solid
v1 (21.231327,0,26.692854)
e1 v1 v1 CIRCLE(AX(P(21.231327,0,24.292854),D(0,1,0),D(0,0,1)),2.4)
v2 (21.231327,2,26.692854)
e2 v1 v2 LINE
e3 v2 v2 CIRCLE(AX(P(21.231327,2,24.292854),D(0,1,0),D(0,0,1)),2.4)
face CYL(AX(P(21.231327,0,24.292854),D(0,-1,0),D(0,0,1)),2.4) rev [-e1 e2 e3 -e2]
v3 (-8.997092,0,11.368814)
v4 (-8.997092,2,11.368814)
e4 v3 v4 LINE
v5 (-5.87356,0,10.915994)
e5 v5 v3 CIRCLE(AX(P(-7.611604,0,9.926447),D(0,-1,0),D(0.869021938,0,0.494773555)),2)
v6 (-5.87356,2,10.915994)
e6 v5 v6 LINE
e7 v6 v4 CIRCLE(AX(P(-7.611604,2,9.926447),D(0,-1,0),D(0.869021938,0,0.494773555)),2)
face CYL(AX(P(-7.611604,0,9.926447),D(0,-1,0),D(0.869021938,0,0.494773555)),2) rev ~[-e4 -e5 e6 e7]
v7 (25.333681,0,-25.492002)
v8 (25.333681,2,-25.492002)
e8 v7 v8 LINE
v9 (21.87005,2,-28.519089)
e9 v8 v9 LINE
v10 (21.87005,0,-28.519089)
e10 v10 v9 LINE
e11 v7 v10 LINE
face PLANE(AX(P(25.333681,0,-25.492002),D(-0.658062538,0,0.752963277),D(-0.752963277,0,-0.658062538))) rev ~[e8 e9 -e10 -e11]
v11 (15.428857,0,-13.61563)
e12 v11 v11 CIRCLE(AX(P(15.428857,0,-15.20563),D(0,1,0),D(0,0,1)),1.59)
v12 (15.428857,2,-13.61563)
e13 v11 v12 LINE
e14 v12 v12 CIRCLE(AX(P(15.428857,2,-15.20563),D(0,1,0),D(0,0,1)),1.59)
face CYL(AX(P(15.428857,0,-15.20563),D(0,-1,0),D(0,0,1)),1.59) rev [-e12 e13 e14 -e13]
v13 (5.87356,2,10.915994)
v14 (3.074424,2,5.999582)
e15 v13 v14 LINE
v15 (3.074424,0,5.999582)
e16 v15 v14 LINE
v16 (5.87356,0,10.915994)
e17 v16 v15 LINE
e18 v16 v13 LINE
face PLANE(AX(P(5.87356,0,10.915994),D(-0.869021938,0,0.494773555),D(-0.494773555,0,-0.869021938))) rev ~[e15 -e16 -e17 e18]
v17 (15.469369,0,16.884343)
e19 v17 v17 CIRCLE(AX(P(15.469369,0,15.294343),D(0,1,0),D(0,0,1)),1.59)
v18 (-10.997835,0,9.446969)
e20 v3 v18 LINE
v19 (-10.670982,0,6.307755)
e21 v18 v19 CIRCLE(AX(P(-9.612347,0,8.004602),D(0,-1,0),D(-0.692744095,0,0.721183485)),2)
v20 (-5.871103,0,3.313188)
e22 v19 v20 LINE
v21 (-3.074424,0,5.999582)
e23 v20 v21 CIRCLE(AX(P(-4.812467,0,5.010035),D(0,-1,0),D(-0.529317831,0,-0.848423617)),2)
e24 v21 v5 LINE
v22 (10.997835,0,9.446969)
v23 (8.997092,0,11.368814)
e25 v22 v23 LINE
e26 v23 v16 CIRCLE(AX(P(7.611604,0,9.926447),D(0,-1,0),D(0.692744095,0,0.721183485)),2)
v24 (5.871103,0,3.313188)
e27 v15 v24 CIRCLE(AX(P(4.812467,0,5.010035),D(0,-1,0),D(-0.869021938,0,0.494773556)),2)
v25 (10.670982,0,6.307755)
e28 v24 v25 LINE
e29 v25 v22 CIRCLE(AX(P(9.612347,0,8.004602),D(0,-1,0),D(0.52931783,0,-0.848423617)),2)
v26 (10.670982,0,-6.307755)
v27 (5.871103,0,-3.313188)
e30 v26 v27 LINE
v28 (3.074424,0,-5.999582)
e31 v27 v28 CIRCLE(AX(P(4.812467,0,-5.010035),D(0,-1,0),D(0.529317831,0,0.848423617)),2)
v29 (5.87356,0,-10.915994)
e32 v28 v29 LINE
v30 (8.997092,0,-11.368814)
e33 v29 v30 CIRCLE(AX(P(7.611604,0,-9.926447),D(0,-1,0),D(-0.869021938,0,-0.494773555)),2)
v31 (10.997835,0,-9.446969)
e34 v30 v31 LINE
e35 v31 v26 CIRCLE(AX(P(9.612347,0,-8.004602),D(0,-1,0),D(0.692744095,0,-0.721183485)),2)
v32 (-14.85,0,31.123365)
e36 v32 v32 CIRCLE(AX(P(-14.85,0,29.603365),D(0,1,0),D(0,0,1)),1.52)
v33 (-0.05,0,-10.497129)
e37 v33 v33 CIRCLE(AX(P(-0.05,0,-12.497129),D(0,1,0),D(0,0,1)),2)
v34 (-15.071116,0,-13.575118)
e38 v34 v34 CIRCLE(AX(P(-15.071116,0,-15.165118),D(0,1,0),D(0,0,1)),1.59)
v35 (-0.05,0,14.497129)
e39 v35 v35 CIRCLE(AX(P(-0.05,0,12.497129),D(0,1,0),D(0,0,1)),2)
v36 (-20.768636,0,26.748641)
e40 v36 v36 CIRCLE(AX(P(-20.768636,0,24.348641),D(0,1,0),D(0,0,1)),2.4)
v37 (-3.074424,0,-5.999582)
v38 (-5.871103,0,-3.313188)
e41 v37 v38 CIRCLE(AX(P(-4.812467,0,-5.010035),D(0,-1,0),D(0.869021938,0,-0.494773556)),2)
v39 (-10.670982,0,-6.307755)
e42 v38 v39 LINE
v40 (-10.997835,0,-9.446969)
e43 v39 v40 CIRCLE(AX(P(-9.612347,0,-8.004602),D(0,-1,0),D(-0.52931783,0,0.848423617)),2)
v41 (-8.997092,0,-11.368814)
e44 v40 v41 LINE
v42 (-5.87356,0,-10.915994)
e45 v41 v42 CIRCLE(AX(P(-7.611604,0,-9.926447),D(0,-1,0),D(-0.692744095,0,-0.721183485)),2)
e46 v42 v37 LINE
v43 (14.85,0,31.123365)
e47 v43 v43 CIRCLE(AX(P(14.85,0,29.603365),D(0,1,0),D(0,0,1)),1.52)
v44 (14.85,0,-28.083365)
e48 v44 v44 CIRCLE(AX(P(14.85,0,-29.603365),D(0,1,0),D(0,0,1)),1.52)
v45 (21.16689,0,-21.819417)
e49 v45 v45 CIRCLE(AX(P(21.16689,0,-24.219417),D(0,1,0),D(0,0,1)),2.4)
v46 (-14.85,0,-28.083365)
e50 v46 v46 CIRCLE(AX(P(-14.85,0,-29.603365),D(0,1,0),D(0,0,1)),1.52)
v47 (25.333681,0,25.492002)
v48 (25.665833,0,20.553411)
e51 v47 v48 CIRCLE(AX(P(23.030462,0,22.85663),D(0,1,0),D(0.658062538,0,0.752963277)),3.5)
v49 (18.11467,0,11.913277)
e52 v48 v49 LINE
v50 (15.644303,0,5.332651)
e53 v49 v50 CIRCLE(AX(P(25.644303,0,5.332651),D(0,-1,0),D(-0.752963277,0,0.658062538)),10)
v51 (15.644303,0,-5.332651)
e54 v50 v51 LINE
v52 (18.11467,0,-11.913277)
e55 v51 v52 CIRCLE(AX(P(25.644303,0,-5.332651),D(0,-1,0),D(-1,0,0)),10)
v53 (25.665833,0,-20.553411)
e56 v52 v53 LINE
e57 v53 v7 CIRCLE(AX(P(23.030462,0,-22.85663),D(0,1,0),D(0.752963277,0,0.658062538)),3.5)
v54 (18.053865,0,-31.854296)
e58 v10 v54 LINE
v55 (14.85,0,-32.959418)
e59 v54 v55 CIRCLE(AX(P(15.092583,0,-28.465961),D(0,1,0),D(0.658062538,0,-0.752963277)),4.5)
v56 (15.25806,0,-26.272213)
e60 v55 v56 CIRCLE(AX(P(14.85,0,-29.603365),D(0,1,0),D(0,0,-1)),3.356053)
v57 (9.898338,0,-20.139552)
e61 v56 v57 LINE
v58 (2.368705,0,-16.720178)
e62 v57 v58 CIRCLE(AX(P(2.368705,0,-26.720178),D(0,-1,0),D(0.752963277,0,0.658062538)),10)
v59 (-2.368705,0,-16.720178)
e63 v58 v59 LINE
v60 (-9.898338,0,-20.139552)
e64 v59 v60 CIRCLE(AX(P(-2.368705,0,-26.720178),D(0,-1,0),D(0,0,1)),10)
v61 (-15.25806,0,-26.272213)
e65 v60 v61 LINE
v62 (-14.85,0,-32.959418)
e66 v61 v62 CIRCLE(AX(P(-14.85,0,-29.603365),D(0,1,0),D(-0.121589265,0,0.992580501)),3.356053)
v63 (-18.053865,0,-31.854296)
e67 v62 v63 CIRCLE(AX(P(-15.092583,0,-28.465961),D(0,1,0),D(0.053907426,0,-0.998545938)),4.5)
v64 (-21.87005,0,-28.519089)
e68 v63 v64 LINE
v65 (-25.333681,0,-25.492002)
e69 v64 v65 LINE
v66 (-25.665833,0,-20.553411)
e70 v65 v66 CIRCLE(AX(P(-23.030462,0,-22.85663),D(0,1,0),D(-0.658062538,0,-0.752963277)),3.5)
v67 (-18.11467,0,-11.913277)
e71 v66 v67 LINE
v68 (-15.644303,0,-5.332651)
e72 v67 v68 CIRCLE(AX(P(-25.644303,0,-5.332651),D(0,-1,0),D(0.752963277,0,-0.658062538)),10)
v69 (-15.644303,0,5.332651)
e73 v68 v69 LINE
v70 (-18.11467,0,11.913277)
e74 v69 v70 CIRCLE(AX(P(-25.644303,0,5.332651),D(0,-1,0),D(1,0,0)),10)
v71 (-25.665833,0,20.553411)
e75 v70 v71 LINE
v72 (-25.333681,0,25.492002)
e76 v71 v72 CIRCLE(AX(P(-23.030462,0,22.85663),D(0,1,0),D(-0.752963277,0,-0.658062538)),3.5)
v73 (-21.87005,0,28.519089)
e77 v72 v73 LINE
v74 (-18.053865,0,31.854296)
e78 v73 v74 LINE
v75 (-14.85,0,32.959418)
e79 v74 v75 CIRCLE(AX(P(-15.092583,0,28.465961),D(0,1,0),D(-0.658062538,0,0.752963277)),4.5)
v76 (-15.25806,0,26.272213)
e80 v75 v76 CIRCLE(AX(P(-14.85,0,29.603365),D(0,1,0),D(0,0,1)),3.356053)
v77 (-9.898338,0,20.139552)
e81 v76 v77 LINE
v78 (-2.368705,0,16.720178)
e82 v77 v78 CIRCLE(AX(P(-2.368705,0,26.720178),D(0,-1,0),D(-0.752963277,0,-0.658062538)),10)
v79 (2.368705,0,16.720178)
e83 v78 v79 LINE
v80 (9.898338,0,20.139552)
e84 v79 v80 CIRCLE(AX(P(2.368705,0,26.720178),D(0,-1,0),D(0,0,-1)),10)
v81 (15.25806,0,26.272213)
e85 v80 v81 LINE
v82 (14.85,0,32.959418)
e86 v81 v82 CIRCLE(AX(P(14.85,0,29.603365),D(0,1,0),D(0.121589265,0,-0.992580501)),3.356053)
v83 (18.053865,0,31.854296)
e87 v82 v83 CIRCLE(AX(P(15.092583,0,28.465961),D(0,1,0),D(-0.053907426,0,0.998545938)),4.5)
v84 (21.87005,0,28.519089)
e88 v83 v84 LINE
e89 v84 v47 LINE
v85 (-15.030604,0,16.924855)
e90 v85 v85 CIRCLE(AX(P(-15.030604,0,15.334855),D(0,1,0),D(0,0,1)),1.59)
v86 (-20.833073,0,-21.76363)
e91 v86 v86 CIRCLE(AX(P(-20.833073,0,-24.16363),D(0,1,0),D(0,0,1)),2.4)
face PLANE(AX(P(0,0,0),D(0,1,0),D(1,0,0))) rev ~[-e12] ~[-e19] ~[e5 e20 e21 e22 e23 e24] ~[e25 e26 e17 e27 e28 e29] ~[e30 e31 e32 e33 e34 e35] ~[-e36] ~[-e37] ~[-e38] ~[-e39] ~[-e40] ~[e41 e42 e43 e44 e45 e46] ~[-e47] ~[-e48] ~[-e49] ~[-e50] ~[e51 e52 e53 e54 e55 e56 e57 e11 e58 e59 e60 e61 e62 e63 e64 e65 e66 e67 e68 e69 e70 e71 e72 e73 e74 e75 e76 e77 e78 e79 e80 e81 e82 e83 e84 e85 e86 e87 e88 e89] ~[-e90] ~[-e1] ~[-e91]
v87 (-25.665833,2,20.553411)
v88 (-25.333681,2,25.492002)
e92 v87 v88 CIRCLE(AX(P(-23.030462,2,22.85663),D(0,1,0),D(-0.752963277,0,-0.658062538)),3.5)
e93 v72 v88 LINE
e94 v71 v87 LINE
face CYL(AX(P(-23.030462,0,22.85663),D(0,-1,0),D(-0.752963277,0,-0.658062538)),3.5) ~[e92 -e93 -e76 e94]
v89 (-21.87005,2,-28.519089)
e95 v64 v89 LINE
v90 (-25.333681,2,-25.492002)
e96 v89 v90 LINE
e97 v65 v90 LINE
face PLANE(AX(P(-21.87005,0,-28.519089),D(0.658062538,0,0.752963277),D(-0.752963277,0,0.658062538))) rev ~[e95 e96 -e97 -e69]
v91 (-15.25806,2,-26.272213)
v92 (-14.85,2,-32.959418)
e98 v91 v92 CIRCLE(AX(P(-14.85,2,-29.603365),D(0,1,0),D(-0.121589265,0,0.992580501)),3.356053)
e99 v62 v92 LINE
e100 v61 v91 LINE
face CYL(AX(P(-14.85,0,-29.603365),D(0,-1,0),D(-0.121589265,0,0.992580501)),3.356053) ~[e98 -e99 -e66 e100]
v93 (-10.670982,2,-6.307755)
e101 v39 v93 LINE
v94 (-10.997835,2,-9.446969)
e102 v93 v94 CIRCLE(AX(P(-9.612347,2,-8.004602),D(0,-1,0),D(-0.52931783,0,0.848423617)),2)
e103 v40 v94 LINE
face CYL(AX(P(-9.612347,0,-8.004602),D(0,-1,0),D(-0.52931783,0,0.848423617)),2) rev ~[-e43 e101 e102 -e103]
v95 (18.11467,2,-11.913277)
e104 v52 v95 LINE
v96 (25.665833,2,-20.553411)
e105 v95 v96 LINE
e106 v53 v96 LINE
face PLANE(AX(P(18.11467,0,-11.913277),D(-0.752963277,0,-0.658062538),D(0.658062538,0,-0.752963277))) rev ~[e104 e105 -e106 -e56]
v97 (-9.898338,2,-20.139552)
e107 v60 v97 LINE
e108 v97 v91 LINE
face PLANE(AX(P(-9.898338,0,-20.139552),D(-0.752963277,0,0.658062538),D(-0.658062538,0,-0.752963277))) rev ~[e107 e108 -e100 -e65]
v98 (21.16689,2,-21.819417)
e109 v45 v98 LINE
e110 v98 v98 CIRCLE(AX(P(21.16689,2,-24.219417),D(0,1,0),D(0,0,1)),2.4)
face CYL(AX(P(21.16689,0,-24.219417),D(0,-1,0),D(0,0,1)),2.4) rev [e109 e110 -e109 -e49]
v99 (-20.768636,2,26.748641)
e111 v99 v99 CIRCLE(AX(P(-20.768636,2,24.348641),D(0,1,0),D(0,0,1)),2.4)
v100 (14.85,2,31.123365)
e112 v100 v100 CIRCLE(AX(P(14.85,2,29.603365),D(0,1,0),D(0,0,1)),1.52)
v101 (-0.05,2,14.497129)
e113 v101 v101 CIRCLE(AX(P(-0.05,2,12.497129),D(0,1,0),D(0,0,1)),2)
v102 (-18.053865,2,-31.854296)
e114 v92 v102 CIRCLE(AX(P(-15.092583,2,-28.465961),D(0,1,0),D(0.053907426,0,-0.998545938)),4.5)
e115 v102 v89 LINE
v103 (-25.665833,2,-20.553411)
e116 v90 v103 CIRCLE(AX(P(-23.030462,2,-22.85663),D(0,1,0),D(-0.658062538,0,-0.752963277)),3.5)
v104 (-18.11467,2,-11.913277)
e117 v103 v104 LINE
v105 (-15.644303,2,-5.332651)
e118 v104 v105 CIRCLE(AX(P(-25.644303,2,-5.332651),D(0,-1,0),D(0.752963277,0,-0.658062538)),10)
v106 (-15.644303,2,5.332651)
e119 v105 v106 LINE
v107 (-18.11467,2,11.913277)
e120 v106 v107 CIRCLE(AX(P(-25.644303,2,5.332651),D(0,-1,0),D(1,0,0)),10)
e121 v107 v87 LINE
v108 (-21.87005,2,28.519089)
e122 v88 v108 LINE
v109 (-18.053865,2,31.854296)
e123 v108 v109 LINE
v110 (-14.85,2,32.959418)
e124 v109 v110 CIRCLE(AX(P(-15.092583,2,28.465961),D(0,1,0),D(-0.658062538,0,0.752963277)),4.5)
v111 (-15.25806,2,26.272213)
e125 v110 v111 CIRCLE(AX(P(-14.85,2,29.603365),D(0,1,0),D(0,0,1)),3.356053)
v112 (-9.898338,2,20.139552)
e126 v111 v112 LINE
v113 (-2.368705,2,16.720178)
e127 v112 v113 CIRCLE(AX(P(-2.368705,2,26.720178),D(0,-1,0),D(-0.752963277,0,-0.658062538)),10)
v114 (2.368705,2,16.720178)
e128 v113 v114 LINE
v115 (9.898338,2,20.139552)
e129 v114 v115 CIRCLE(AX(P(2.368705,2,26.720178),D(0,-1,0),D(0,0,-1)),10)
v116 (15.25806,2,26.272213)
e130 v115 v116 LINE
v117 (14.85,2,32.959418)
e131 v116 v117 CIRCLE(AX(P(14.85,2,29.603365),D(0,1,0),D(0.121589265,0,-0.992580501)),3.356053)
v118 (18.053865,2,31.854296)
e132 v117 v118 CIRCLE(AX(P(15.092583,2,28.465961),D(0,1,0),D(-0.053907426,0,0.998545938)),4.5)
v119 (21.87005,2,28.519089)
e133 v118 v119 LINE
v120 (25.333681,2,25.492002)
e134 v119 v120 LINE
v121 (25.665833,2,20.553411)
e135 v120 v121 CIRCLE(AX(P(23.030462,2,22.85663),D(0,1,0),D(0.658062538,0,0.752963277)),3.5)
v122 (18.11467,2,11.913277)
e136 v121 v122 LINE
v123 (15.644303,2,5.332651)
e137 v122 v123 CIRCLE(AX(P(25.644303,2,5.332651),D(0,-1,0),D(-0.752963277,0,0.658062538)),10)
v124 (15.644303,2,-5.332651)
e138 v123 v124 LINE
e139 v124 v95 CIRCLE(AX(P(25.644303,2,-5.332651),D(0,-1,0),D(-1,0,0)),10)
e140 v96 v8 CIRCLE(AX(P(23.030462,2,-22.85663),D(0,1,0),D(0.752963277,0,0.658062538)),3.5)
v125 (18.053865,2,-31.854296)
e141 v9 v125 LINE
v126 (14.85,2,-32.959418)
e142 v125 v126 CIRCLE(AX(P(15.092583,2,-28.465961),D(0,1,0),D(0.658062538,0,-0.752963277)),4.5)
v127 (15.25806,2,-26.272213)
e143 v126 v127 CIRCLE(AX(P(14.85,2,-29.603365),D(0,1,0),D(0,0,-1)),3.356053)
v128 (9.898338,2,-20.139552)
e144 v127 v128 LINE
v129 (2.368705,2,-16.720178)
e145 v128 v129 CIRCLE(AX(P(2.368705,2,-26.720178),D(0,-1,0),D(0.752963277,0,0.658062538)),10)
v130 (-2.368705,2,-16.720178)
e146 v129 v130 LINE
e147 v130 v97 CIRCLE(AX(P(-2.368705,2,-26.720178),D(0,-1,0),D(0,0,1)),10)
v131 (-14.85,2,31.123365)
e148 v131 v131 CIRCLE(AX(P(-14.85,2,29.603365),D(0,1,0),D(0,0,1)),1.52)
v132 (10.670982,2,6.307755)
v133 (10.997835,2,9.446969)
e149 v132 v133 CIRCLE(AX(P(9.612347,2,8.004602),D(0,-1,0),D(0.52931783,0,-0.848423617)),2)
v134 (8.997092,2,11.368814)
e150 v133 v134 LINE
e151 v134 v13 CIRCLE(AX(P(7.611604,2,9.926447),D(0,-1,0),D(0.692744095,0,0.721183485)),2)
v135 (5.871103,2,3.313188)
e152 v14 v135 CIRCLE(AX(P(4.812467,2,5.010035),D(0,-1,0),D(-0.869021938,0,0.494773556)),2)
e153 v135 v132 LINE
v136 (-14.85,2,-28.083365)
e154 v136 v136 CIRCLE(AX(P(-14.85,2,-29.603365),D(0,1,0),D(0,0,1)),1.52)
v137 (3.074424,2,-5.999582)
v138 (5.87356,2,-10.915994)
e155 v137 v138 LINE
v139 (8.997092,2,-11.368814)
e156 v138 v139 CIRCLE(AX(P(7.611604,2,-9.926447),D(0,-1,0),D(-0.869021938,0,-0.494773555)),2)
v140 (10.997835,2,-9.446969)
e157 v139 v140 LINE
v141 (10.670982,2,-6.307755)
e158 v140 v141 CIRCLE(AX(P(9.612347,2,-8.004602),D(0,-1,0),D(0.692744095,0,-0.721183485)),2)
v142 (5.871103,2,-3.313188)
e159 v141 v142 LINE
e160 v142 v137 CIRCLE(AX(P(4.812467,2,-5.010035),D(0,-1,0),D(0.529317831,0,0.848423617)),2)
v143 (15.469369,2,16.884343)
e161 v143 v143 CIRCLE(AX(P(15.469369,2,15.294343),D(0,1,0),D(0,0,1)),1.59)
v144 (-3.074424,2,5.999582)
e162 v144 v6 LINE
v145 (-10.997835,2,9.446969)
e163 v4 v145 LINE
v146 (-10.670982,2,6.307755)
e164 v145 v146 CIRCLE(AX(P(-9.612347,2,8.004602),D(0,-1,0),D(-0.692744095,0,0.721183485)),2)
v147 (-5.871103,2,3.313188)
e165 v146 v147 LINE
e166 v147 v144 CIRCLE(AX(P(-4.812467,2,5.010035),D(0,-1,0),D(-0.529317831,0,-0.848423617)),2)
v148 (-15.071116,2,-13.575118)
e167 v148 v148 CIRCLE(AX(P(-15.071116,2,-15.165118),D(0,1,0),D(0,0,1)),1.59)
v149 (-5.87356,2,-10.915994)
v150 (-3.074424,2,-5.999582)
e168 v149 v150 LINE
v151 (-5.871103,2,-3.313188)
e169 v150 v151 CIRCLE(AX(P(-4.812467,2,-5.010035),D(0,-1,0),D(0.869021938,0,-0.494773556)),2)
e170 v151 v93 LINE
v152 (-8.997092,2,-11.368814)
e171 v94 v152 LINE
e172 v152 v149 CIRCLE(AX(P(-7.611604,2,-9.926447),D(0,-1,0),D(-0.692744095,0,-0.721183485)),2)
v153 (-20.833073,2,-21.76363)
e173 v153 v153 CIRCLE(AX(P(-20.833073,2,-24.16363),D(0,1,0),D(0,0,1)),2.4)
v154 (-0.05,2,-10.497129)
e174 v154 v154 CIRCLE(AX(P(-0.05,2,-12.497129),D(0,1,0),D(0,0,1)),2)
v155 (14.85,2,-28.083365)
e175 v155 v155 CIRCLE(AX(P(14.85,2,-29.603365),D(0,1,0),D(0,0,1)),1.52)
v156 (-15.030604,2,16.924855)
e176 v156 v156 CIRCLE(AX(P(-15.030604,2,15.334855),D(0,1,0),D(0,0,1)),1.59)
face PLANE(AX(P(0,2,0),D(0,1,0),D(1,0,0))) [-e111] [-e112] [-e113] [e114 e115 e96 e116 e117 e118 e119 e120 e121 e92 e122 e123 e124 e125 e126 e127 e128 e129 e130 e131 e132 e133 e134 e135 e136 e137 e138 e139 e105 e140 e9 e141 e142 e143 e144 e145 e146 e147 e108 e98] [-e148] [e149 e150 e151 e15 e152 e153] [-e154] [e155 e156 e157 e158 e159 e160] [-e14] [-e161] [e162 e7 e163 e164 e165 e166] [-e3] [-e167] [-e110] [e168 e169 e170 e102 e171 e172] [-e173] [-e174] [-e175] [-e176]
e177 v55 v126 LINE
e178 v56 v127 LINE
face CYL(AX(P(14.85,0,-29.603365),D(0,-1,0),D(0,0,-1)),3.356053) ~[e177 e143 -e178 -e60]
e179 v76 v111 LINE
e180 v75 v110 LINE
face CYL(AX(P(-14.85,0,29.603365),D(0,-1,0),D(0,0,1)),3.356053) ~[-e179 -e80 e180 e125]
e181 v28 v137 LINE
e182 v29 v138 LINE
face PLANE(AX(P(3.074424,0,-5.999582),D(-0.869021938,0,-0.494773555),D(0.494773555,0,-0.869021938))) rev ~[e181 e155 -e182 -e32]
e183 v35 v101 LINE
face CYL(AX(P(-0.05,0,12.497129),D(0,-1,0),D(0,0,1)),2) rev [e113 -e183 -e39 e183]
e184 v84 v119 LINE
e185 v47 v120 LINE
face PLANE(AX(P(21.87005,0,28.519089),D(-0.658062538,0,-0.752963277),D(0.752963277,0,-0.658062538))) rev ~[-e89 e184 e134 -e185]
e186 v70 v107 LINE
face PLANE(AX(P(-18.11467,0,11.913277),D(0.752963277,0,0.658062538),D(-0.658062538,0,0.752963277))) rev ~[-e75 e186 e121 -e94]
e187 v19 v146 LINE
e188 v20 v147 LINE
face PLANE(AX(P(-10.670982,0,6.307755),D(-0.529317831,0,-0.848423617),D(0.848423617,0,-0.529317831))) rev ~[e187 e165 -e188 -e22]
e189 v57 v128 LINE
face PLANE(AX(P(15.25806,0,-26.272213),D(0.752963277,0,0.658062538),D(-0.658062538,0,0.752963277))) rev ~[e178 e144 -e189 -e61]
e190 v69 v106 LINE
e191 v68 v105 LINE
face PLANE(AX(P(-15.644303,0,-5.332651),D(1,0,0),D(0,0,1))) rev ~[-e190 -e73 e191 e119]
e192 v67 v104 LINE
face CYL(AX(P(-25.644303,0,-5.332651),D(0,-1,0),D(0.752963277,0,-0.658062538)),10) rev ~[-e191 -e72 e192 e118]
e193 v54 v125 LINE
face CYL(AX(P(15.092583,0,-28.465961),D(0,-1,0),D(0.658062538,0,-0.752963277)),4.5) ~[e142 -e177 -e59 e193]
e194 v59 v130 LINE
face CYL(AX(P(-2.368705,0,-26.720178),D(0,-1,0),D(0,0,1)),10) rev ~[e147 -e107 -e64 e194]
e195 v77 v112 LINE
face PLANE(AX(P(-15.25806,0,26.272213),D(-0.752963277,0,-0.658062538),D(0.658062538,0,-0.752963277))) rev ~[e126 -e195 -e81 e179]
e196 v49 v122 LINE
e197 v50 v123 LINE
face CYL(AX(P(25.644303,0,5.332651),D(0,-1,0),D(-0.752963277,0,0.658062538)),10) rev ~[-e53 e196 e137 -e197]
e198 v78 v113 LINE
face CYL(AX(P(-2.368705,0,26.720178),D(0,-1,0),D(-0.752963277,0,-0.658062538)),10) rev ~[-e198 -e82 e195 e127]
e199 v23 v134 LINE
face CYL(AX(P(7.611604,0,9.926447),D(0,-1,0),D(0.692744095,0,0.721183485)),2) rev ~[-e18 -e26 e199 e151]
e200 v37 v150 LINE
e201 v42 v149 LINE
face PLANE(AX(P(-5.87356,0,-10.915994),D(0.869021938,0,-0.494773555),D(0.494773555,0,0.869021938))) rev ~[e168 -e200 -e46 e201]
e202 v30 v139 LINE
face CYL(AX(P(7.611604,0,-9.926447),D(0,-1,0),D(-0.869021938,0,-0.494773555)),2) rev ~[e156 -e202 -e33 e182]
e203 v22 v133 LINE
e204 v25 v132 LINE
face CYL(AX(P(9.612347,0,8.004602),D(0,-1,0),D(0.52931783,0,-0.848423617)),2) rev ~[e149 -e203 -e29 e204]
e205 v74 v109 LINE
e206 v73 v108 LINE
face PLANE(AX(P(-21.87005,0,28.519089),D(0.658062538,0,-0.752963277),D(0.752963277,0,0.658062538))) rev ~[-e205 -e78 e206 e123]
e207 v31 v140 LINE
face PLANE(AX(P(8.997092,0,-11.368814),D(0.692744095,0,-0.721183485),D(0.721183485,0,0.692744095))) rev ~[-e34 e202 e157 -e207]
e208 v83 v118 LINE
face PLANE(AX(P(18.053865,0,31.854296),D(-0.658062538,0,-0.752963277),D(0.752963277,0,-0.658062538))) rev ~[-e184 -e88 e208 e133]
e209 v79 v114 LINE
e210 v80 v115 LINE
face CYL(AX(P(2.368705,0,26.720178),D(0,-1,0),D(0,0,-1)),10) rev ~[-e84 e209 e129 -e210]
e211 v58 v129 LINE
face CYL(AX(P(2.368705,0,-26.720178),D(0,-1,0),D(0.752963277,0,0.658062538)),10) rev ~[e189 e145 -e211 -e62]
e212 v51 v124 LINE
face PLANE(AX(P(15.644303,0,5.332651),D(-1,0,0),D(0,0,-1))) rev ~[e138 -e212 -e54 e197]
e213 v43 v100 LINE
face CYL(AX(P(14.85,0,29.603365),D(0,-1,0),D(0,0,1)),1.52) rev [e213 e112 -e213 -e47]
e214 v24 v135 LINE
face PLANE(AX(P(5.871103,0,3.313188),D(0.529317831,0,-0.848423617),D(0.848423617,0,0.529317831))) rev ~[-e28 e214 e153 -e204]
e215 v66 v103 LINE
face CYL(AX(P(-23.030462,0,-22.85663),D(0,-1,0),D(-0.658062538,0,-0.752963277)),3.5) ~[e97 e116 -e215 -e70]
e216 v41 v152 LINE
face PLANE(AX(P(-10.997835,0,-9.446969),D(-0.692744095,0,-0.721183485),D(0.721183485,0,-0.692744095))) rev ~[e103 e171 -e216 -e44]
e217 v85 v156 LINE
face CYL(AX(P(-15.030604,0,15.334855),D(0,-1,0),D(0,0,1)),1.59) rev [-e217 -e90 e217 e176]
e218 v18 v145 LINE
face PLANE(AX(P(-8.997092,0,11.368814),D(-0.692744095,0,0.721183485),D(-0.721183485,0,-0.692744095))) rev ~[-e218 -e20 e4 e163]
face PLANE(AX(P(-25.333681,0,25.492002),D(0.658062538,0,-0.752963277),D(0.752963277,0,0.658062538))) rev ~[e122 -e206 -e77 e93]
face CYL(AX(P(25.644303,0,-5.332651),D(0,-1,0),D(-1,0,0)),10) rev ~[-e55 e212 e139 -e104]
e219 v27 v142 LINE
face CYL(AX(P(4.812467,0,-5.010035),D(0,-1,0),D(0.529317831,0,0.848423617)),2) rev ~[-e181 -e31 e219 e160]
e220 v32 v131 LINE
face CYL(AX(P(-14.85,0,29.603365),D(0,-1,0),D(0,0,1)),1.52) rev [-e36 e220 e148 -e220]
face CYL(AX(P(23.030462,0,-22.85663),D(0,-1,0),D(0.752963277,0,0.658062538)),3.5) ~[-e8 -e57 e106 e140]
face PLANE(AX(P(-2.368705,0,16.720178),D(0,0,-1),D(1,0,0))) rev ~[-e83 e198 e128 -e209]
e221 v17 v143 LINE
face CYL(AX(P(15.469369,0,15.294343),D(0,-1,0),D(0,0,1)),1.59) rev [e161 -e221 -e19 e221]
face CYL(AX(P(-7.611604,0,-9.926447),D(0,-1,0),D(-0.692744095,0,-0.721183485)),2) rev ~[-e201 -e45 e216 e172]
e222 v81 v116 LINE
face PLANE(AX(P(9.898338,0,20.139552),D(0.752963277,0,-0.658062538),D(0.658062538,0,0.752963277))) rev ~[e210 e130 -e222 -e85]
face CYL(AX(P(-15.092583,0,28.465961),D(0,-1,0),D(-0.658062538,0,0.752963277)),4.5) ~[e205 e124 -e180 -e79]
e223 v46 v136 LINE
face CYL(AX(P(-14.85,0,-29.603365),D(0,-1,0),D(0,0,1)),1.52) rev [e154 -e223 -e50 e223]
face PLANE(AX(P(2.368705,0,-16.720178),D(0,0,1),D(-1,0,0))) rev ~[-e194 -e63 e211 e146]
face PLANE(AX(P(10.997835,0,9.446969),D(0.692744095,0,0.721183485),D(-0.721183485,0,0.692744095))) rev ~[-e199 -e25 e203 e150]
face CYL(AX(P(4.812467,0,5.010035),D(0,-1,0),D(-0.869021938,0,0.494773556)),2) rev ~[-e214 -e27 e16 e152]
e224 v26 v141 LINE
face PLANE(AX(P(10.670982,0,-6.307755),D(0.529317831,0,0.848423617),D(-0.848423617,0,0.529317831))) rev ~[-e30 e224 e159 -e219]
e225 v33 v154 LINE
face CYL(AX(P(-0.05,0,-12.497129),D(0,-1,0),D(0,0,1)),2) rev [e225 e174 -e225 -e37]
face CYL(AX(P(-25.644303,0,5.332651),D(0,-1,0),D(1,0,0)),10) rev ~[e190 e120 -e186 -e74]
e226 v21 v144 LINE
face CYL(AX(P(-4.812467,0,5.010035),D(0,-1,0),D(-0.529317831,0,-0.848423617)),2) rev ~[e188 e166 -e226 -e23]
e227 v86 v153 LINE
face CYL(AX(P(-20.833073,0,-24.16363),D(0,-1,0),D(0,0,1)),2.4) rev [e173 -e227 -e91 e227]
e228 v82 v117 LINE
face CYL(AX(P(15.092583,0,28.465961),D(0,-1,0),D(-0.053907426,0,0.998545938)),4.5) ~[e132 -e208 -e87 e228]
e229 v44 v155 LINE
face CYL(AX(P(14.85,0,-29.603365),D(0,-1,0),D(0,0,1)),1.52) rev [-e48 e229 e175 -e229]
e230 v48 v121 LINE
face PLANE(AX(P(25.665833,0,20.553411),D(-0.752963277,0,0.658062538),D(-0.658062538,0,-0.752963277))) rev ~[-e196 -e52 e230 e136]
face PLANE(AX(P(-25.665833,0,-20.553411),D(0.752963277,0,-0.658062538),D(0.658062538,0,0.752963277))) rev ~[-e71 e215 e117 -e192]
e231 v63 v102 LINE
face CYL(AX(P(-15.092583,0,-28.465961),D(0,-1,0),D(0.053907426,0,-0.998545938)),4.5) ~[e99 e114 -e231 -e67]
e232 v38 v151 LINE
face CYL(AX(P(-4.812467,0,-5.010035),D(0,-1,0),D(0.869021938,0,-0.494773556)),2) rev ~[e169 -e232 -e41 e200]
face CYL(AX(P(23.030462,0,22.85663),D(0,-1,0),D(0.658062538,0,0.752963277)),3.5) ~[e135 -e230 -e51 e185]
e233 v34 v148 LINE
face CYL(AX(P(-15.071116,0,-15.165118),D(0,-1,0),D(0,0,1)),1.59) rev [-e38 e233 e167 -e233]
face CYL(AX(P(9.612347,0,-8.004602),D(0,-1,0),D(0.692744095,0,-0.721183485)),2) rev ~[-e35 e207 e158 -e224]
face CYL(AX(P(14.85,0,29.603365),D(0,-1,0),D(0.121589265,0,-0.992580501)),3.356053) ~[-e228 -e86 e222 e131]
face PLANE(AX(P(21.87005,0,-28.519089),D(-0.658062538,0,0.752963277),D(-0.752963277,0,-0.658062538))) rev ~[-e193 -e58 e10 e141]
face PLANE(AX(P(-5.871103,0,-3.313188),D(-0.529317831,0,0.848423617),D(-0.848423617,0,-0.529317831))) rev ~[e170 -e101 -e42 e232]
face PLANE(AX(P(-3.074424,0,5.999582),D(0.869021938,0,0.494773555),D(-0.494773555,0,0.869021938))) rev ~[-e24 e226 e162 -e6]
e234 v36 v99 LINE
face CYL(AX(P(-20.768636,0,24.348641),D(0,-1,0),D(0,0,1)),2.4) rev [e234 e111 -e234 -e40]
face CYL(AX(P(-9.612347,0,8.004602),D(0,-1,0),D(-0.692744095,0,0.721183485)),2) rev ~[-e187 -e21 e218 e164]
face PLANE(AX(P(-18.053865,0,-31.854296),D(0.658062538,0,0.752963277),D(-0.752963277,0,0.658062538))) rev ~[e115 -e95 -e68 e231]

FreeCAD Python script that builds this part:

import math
import FreeCAD as App
import Part
import Sketcher
Q = App.Units.Quantity

doc = App.newDocument("Part")
params = doc.addObject("Spreadsheet::Sheet", "Params")
for row, (alias, value) in enumerate([
    ("sketch1_diameter", "4 mm"),
    ("sketch1_radius", "10 mm"),
    ("sketch1_diameter2", "4.8 mm"),
    ("sketch1_radius2", "3.5 mm"),
    ("sketch1_radius3", "4.5 mm"),
    ("pad1_length", "2 mm"),
], start=1):
    params.set(f"A{row}", alias)
    params.set(f"B{row}", "=" + value)
    params.setAlias(f"B{row}", alias)

body = doc.addObject("PartDesign::Body", "Body")

# Sketch on XZ plane
sketch1 = body.newObject("Sketcher::SketchObject", "Sketch")
sketch1.AttachmentSupport = (doc.getObject("XZ_Plane"), [""])
sketch1.MapMode = "FlatFace"
sketch1.addGeometry(Part.ArcOfCircle(Part.Circle(App.Vector(-25.6, 5.3, 0), App.Vector(0, 0, 1), 10), math.radians(0), math.radians(41)), False)
sketch1.addGeometry(Part.LineSegment(App.Vector(-18.1, 11.9, 0), App.Vector(-25.7, 20.6, 0)), False)
sketch1.addGeometry(Part.ArcOfCircle(Part.Circle(App.Vector(-23, 22.9, 0), App.Vector(0, 0, 1), 3.5), math.radians(131), math.radians(221)), False)
sketch1.addGeometry(Part.LineSegment(App.Vector(-25.3, 25.5, 0), App.Vector(-21.9, 28.5, 0)), False)
sketch1.addGeometry(Part.LineSegment(App.Vector(-21.9, 28.5, 0), App.Vector(-18.1, 31.9, 0)), False)
sketch1.addGeometry(Part.ArcOfCircle(Part.Circle(App.Vector(-15.1, 28.5, 0), App.Vector(0, 0, 1), 4.5), math.radians(87), math.radians(131)), False)
sketch1.addGeometry(Part.ArcOfCircle(Part.Circle(App.Vector(-14.8, 29.6, 0), App.Vector(0, 0, 1), 3.4), math.radians(-97), math.radians(90)), False)
sketch1.addGeometry(Part.LineSegment(App.Vector(-15.3, 26.3, 0), App.Vector(-9.9, 20.1, 0)), False)
sketch1.addGeometry(Part.ArcOfCircle(Part.Circle(App.Vector(-2.4, 26.7, 0), App.Vector(0, 0, 1), 10), math.radians(-139), math.radians(-90)), False)
sketch1.addGeometry(Part.LineSegment(App.Vector(-2.4, 16.7, 0), App.Vector(2.4, 16.7, 0)), False)
sketch1.addGeometry(Part.ArcOfCircle(Part.Circle(App.Vector(2.4, 26.7, 0), App.Vector(0, 0, 1), 10), math.radians(-90), math.radians(-41)), False)
sketch1.addGeometry(Part.LineSegment(App.Vector(9.9, 20.1, 0), App.Vector(15.3, 26.3, 0)), False)
sketch1.addGeometry(Part.ArcOfCircle(Part.Circle(App.Vector(14.8, 29.6, 0), App.Vector(0, 0, 1), 3.4), math.radians(90), math.radians(277)), False)
sketch1.addGeometry(Part.ArcOfCircle(Part.Circle(App.Vector(15.1, 28.5, 0), App.Vector(0, 0, 1), 4.5), math.radians(49), math.radians(93)), False)
sketch1.addGeometry(Part.LineSegment(App.Vector(18.1, 31.9, 0), App.Vector(21.9, 28.5, 0)), False)
sketch1.addGeometry(Part.LineSegment(App.Vector(21.9, 28.5, 0), App.Vector(25.3, 25.5, 0)), False)
sketch1.addGeometry(Part.ArcOfCircle(Part.Circle(App.Vector(23, 22.9, 0), App.Vector(0, 0, 1), 3.5), math.radians(-41), math.radians(49)), False)
sketch1.addGeometry(Part.LineSegment(App.Vector(25.7, 20.6, 0), App.Vector(18.1, 11.9, 0)), False)
sketch1.addGeometry(Part.ArcOfCircle(Part.Circle(App.Vector(25.6, 5.3, 0), App.Vector(0, 0, 1), 10), math.radians(139), math.radians(180)), False)
sketch1.addGeometry(Part.LineSegment(App.Vector(15.6, 5.3, 0), App.Vector(15.6, -5.3, 0)), False)
sketch1.addGeometry(Part.ArcOfCircle(Part.Circle(App.Vector(25.6, -5.3, 0), App.Vector(0, 0, 1), 10), math.radians(180), math.radians(221)), False)
sketch1.addGeometry(Part.LineSegment(App.Vector(18.1, -11.9, 0), App.Vector(25.7, -20.6, 0)), False)
sketch1.addGeometry(Part.ArcOfCircle(Part.Circle(App.Vector(23, -22.9, 0), App.Vector(0, 0, 1), 3.5), math.radians(-49), math.radians(41)), False)
sketch1.addGeometry(Part.LineSegment(App.Vector(25.3, -25.5, 0), App.Vector(21.9, -28.5, 0)), False)
sketch1.addGeometry(Part.LineSegment(App.Vector(21.9, -28.5, 0), App.Vector(18.1, -31.9, 0)), False)
sketch1.addGeometry(Part.ArcOfCircle(Part.Circle(App.Vector(15.1, -28.5, 0), App.Vector(0, 0, 1), 4.5), math.radians(-93), math.radians(-49)), False)
sketch1.addGeometry(Part.ArcOfCircle(Part.Circle(App.Vector(14.8, -29.6, 0), App.Vector(0, 0, 1), 3.4), math.radians(83), math.radians(270)), False)
sketch1.addGeometry(Part.LineSegment(App.Vector(15.3, -26.3, 0), App.Vector(9.9, -20.1, 0)), False)
sketch1.addGeometry(Part.ArcOfCircle(Part.Circle(App.Vector(2.4, -26.7, 0), App.Vector(0, 0, 1), 10), math.radians(41), math.radians(90)), False)
sketch1.addGeometry(Part.LineSegment(App.Vector(2.4, -16.7, 0), App.Vector(-2.4, -16.7, 0)), False)
sketch1.addGeometry(Part.ArcOfCircle(Part.Circle(App.Vector(-2.4, -26.7, 0), App.Vector(0, 0, 1), 10), math.radians(90), math.radians(139)), False)
sketch1.addGeometry(Part.LineSegment(App.Vector(-9.9, -20.1, 0), App.Vector(-15.3, -26.3, 0)), False)
sketch1.addGeometry(Part.ArcOfCircle(Part.Circle(App.Vector(-14.8, -29.6, 0), App.Vector(0, 0, 1), 3.4), math.radians(-90), math.radians(97)), False)
sketch1.addGeometry(Part.ArcOfCircle(Part.Circle(App.Vector(-15.1, -28.5, 0), App.Vector(0, 0, 1), 4.5), math.radians(-131), math.radians(-87)), False)
sketch1.addGeometry(Part.LineSegment(App.Vector(-18.1, -31.9, 0), App.Vector(-21.9, -28.5, 0)), False)
sketch1.addGeometry(Part.LineSegment(App.Vector(-21.9, -28.5, 0), App.Vector(-25.3, -25.5, 0)), False)
sketch1.addGeometry(Part.ArcOfCircle(Part.Circle(App.Vector(-23, -22.9, 0), App.Vector(0, 0, 1), 3.5), math.radians(139), math.radians(229)), False)
sketch1.addGeometry(Part.LineSegment(App.Vector(-25.7, -20.6, 0), App.Vector(-18.1, -11.9, 0)), False)
sketch1.addGeometry(Part.ArcOfCircle(Part.Circle(App.Vector(-25.6, -5.3, 0), App.Vector(0, 0, 1), 10), math.radians(-41), math.radians(0)), False)
sketch1.addGeometry(Part.LineSegment(App.Vector(-15.6, -5.3, 0), App.Vector(-15.6, 5.3, 0)), False)
sketch1.addGeometry(Part.Circle(App.Vector(-20.8, 24.3, 0), App.Vector(0, 0, 1), 2.4), False)
sketch1.addGeometry(Part.Circle(App.Vector(-14.8, 29.6, 0), App.Vector(0, 0, 1), 1.5), False)
sketch1.addGeometry(Part.Circle(App.Vector(-15, 15.3, 0), App.Vector(0, 0, 1), 1.6), False)
sketch1.addGeometry(Part.Circle(App.Vector(-0.1, 12.5, 0), App.Vector(0, 0, 1), 2), False)
sketch1.addGeometry(Part.ArcOfCircle(Part.Circle(App.Vector(-4.8, 5, 0), App.Vector(0, 0, 1), 2), math.radians(-122), math.radians(30)), False)
sketch1.addGeometry(Part.LineSegment(App.Vector(-3.1, 6, 0), App.Vector(-5.9, 10.9, 0)), False)
sketch1.addGeometry(Part.ArcOfCircle(Part.Circle(App.Vector(-7.6, 9.9, 0), App.Vector(0, 0, 1), 2), math.radians(30), math.radians(134)), False)
sketch1.addGeometry(Part.LineSegment(App.Vector(-9, 11.4, 0), App.Vector(-11, 9.4, 0)), False)
sketch1.addGeometry(Part.ArcOfCircle(Part.Circle(App.Vector(-9.6, 8, 0), App.Vector(0, 0, 1), 2), math.radians(134), math.radians(238)), False)
sketch1.addGeometry(Part.LineSegment(App.Vector(-10.7, 6.3, 0), App.Vector(-5.9, 3.3, 0)), False)
sketch1.addGeometry(Part.Circle(App.Vector(14.8, 29.6, 0), App.Vector(0, 0, 1), 1.5), False)
sketch1.addGeometry(Part.Circle(App.Vector(21.2, 24.3, 0), App.Vector(0, 0, 1), 2.4), False)
sketch1.addGeometry(Part.ArcOfCircle(Part.Circle(App.Vector(9.6, 8, 0), App.Vector(0, 0, 1), 2), math.radians(-58), math.radians(46)), False)
sketch1.addGeometry(Part.LineSegment(App.Vector(11, 9.4, 0), App.Vector(9, 11.4, 0)), False)
sketch1.addGeometry(Part.ArcOfCircle(Part.Circle(App.Vector(7.6, 9.9, 0), App.Vector(0, 0, 1), 2), math.radians(46), math.radians(150)), False)
sketch1.addGeometry(Part.LineSegment(App.Vector(5.9, 10.9, 0), App.Vector(3.1, 6, 0)), False)
sketch1.addGeometry(Part.ArcOfCircle(Part.Circle(App.Vector(4.8, 5, 0), App.Vector(0, 0, 1), 2), math.radians(150), math.radians(302)), False)
sketch1.addGeometry(Part.LineSegment(App.Vector(5.9, 3.3, 0), App.Vector(10.7, 6.3, 0)), False)
sketch1.addGeometry(Part.Circle(App.Vector(15.5, 15.3, 0), App.Vector(0, 0, 1), 1.6), False)
sketch1.addGeometry(Part.Circle(App.Vector(-15.1, -15.2, 0), App.Vector(0, 0, 1), 1.6), False)
sketch1.addGeometry(Part.ArcOfCircle(Part.Circle(App.Vector(-9.6, -8, 0), App.Vector(0, 0, 1), 2), math.radians(122), math.radians(226)), False)
sketch1.addGeometry(Part.LineSegment(App.Vector(-11, -9.4, 0), App.Vector(-9, -11.4, 0)), False)
sketch1.addGeometry(Part.ArcOfCircle(Part.Circle(App.Vector(-7.6, -9.9, 0), App.Vector(0, 0, 1), 2), math.radians(-134), math.radians(-30)), False)
sketch1.addGeometry(Part.LineSegment(App.Vector(-5.9, -10.9, 0), App.Vector(-3.1, -6, 0)), False)
sketch1.addGeometry(Part.ArcOfCircle(Part.Circle(App.Vector(-4.8, -5, 0), App.Vector(0, 0, 1), 2), math.radians(-30), math.radians(122)), False)
sketch1.addGeometry(Part.LineSegment(App.Vector(-5.9, -3.3, 0), App.Vector(-10.7, -6.3, 0)), False)
sketch1.addGeometry(Part.Circle(App.Vector(-0.1, -12.5, 0), App.Vector(0, 0, 1), 2), False)
sketch1.addGeometry(Part.Circle(App.Vector(-20.8, -24.2, 0), App.Vector(0, 0, 1), 2.4), False)
sketch1.addGeometry(Part.Circle(App.Vector(-14.8, -29.6, 0), App.Vector(0, 0, 1), 1.5), False)
sketch1.addGeometry(Part.ArcOfCircle(Part.Circle(App.Vector(4.8, -5, 0), App.Vector(0, 0, 1), 2), math.radians(58), math.radians(210)), False)
sketch1.addGeometry(Part.LineSegment(App.Vector(3.1, -6, 0), App.Vector(5.9, -10.9, 0)), False)
sketch1.addGeometry(Part.ArcOfCircle(Part.Circle(App.Vector(7.6, -9.9, 0), App.Vector(0, 0, 1), 2), math.radians(-150), math.radians(-46)), False)
sketch1.addGeometry(Part.LineSegment(App.Vector(9, -11.4, 0), App.Vector(11, -9.4, 0)), False)
sketch1.addGeometry(Part.ArcOfCircle(Part.Circle(App.Vector(9.6, -8, 0), App.Vector(0, 0, 1), 2), math.radians(-46), math.radians(58)), False)
sketch1.addGeometry(Part.LineSegment(App.Vector(10.7, -6.3, 0), App.Vector(5.9, -3.3, 0)), False)
sketch1.addGeometry(Part.Circle(App.Vector(15.4, -15.2, 0), App.Vector(0, 0, 1), 1.6), False)
sketch1.addGeometry(Part.Circle(App.Vector(14.8, -29.6, 0), App.Vector(0, 0, 1), 1.5), False)
sketch1.addGeometry(Part.Circle(App.Vector(21.2, -24.2, 0), App.Vector(0, 0, 1), 2.4), False)
sketch1.addConstraint(Sketcher.Constraint("Tangent", 0, 2, 1, 1))
sketch1.addConstraint(Sketcher.Constraint("Tangent", 1, 2, 2, 2))
sketch1.addConstraint(Sketcher.Constraint("Tangent", 2, 1, 3, 1))
sketch1.addConstraint(Sketcher.Constraint("Coincident", 3, 2, 4, 1))
sketch1.addConstraint(Sketcher.Constraint("Tangent", 4, 2, 5, 2))
sketch1.addConstraint(Sketcher.Constraint("Coincident", 5, 1, 6, 2))
sketch1.addConstraint(Sketcher.Constraint("Coincident", 6, 1, 7, 1))
sketch1.addConstraint(Sketcher.Constraint("Tangent", 7, 2, 8, 1))
sketch1.addConstraint(Sketcher.Constraint("Tangent", 8, 2, 9, 1))
sketch1.addConstraint(Sketcher.Constraint("Tangent", 9, 2, 10, 1))
sketch1.addConstraint(Sketcher.Constraint("Tangent", 10, 2, 11, 1))
sketch1.addConstraint(Sketcher.Constraint("Coincident", 11, 2, 12, 2))
sketch1.addConstraint(Sketcher.Constraint("Coincident", 12, 1, 13, 2))
sketch1.addConstraint(Sketcher.Constraint("Tangent", 13, 1, 14, 1))
sketch1.addConstraint(Sketcher.Constraint("Coincident", 14, 2, 15, 1))
sketch1.addConstraint(Sketcher.Constraint("Tangent", 15, 2, 16, 2))
sketch1.addConstraint(Sketcher.Constraint("Tangent", 16, 1, 17, 1))
sketch1.addConstraint(Sketcher.Constraint("Tangent", 17, 2, 18, 1))
sketch1.addConstraint(Sketcher.Constraint("Tangent", 18, 2, 19, 1))
sketch1.addConstraint(Sketcher.Constraint("Tangent", 19, 2, 20, 1))
sketch1.addConstraint(Sketcher.Constraint("Tangent", 20, 2, 21, 1))
sketch1.addConstraint(Sketcher.Constraint("Tangent", 21, 2, 22, 2))
sketch1.addConstraint(Sketcher.Constraint("Tangent", 22, 1, 23, 1))
sketch1.addConstraint(Sketcher.Constraint("Coincident", 23, 2, 24, 1))
sketch1.addConstraint(Sketcher.Constraint("Tangent", 24, 2, 25, 2))
sketch1.addConstraint(Sketcher.Constraint("Coincident", 25, 1, 26, 2))
sketch1.addConstraint(Sketcher.Constraint("Coincident", 26, 1, 27, 1))
sketch1.addConstraint(Sketcher.Constraint("Tangent", 27, 2, 28, 1))
sketch1.addConstraint(Sketcher.Constraint("Tangent", 28, 2, 29, 1))
sketch1.addConstraint(Sketcher.Constraint("Tangent", 29, 2, 30, 1))
sketch1.addConstraint(Sketcher.Constraint("Tangent", 30, 2, 31, 1))
sketch1.addConstraint(Sketcher.Constraint("Coincident", 31, 2, 32, 2))
sketch1.addConstraint(Sketcher.Constraint("Coincident", 32, 1, 33, 2))
sketch1.addConstraint(Sketcher.Constraint("Tangent", 33, 1, 34, 1))
sketch1.addConstraint(Sketcher.Constraint("Coincident", 34, 2, 35, 1))
sketch1.addConstraint(Sketcher.Constraint("Tangent", 35, 2, 36, 2))
sketch1.addConstraint(Sketcher.Constraint("Tangent", 36, 1, 37, 1))
sketch1.addConstraint(Sketcher.Constraint("Tangent", 37, 2, 38, 1))
sketch1.addConstraint(Sketcher.Constraint("Tangent", 38, 2, 39, 1))
sketch1.addConstraint(Sketcher.Constraint("Tangent", 39, 2, 0, 1))
sketch1.addConstraint(Sketcher.Constraint("Tangent", 44, 2, 45, 1))
sketch1.addConstraint(Sketcher.Constraint("Tangent", 45, 2, 46, 1))
sketch1.addConstraint(Sketcher.Constraint("Tangent", 46, 2, 47, 1))
sketch1.addConstraint(Sketcher.Constraint("Tangent", 47, 2, 48, 1))
sketch1.addConstraint(Sketcher.Constraint("Tangent", 48, 2, 49, 1))
sketch1.addConstraint(Sketcher.Constraint("Tangent", 49, 2, 44, 1))
sketch1.addConstraint(Sketcher.Constraint("Tangent", 52, 2, 53, 1))
sketch1.addConstraint(Sketcher.Constraint("Tangent", 53, 2, 54, 1))
sketch1.addConstraint(Sketcher.Constraint("Tangent", 54, 2, 55, 1))
sketch1.addConstraint(Sketcher.Constraint("Tangent", 55, 2, 56, 1))
sketch1.addConstraint(Sketcher.Constraint("Tangent", 56, 2, 57, 1))
sketch1.addConstraint(Sketcher.Constraint("Tangent", 57, 2, 52, 1))
sketch1.addConstraint(Sketcher.Constraint("Tangent", 60, 2, 61, 1))
sketch1.addConstraint(Sketcher.Constraint("Tangent", 61, 2, 62, 1))
sketch1.addConstraint(Sketcher.Constraint("Tangent", 62, 2, 63, 1))
sketch1.addConstraint(Sketcher.Constraint("Tangent", 63, 2, 64, 1))
sketch1.addConstraint(Sketcher.Constraint("Tangent", 64, 2, 65, 1))
sketch1.addConstraint(Sketcher.Constraint("Tangent", 65, 2, 60, 1))
sketch1.addConstraint(Sketcher.Constraint("Tangent", 69, 2, 70, 1))
sketch1.addConstraint(Sketcher.Constraint("Tangent", 70, 2, 71, 1))
sketch1.addConstraint(Sketcher.Constraint("Tangent", 71, 2, 72, 1))
sketch1.addConstraint(Sketcher.Constraint("Tangent", 72, 2, 73, 1))
sketch1.addConstraint(Sketcher.Constraint("Tangent", 73, 2, 74, 1))
sketch1.addConstraint(Sketcher.Constraint("Tangent", 74, 2, 69, 1))
sketch1.addConstraint(Sketcher.Constraint("Horizontal", 9))
sketch1.addConstraint(Sketcher.Constraint("Vertical", 19))
sketch1.addConstraint(Sketcher.Constraint("Horizontal", 29))
sketch1.addConstraint(Sketcher.Constraint("Vertical", 39))
sketch1.addConstraint(Sketcher.Constraint("Coincident", 41, 3, 6, 3))
sketch1.addConstraint(Sketcher.Constraint("Coincident", 50, 3, 12, 3))
sketch1.addConstraint(Sketcher.Constraint("Coincident", 68, 3, 32, 3))
sketch1.addConstraint(Sketcher.Constraint("Coincident", 76, 3, 26, 3))
sketch1.addConstraint(Sketcher.Constraint("Equal", 0, 8))
sketch1.addConstraint(Sketcher.Constraint("Equal", 8, 10))
sketch1.addConstraint(Sketcher.Constraint("Equal", 6, 12))
sketch1.addConstraint(Sketcher.Constraint("Equal", 5, 13))
sketch1.addConstraint(Sketcher.Constraint("Equal", 2, 16))
sketch1.addConstraint(Sketcher.Constraint("Equal", 10, 18))
sketch1.addConstraint(Sketcher.Constraint("Equal", 18, 20))
sketch1.addConstraint(Sketcher.Constraint("Equal", 16, 22))
sketch1.addConstraint(Sketcher.Constraint("Equal", 13, 25))
sketch1.addConstraint(Sketcher.Constraint("Equal", 12, 26))
sketch1.addConstraint(Sketcher.Constraint("Equal", 20, 28))
sketch1.addConstraint(Sketcher.Constraint("Equal", 28, 30))
sketch1.addConstraint(Sketcher.Constraint("Equal", 26, 32))
sketch1.addConstraint(Sketcher.Constraint("Equal", 25, 33))
sketch1.addConstraint(Sketcher.Constraint("Equal", 22, 36))
sketch1.addConstraint(Sketcher.Constraint("Equal", 30, 38))
sketch1.addConstraint(Sketcher.Constraint("Equal", 43, 44))
sketch1.addConstraint(Sketcher.Constraint("Equal", 44, 46))
sketch1.addConstraint(Sketcher.Constraint("Equal", 46, 48))
sketch1.addConstraint(Sketcher.Constraint("Equal", 41, 50))
sketch1.addConstraint(Sketcher.Constraint("Equal", 40, 51))
sketch1.addConstraint(Sketcher.Constraint("Equal", 48, 52))
sketch1.addConstraint(Sketcher.Constraint("Equal", 52, 54))
sketch1.addConstraint(Sketcher.Constraint("Equal", 54, 56))
sketch1.addConstraint(Sketcher.Constraint("Equal", 42, 58))
sketch1.addConstraint(Sketcher.Constraint("Equal", 58, 59))
sketch1.addConstraint(Sketcher.Constraint("Equal", 56, 60))
sketch1.addConstraint(Sketcher.Constraint("Equal", 60, 62))
sketch1.addConstraint(Sketcher.Constraint("Equal", 62, 64))
sketch1.addConstraint(Sketcher.Constraint("Equal", 64, 66))
sketch1.addConstraint(Sketcher.Constraint("Equal", 51, 67))
sketch1.addConstraint(Sketcher.Constraint("Equal", 50, 68))
sketch1.addConstraint(Sketcher.Constraint("Equal", 66, 69))
sketch1.addConstraint(Sketcher.Constraint("Equal", 69, 71))
sketch1.addConstraint(Sketcher.Constraint("Equal", 71, 73))
sketch1.addConstraint(Sketcher.Constraint("Equal", 59, 75))
sketch1.addConstraint(Sketcher.Constraint("Equal", 68, 76))
sketch1.addConstraint(Sketcher.Constraint("Equal", 67, 77))
sketch1.addConstraint(Sketcher.Constraint("Symmetric", 0, 3, 20, 3, -1, 1))
sketch1.addConstraint(Sketcher.Constraint("Symmetric", 2, 3, 22, 3, -1, 1))
sketch1.addConstraint(Sketcher.Constraint("Symmetric", 5, 3, 25, 3, -1, 1))
sketch1.addConstraint(Sketcher.Constraint("Symmetric", 6, 3, 26, 3, -1, 1))
sketch1.addConstraint(Sketcher.Constraint("Symmetric", 8, 3, 28, 3, -1, 1))
sketch1.addConstraint(Sketcher.Constraint("Symmetric", 12, 3, 32, 3, -1, 1))
sketch1.addConstraint(Sketcher.Constraint("Symmetric", 13, 3, 33, 3, -1, 1))
sketch1.addConstraint(Sketcher.Constraint("Symmetric", 16, 3, 36, 3, -1, 1))
sketch1.addConstraint(Sketcher.Constraint("Symmetric", 52, 3, 60, 3, -1, 1))
sketch1.addConstraint(Sketcher.Constraint("Symmetric", 54, 3, 62, 3, -1, 1))
sketch1.addConstraint(Sketcher.Constraint("Symmetric", 56, 3, 64, 3, -1, 1))
sketch1.addConstraint(Sketcher.Constraint("Symmetric", 44, 3, 69, 3, -1, 1))
sketch1.addConstraint(Sketcher.Constraint("Symmetric", 46, 3, 71, 3, -1, 1))
sketch1.addConstraint(Sketcher.Constraint("Symmetric", 48, 3, 73, 3, -1, 1))
sketch1.addConstraint(Sketcher.Constraint("Symmetric", 3, 2, 23, 2, -1, 1))
sketch1.addConstraint(Sketcher.Constraint("Symmetric", 10, 2, 30, 2, -1, 1))
sketch1.addConstraint(Sketcher.Constraint("Symmetric", 14, 2, 34, 2, -1, 1))
sketch1.addConstraint(Sketcher.Constraint("Symmetric", 6, 3, 12, 3, -2))
sketch1.addConstraint(Sketcher.Constraint("Symmetric", 5, 3, 13, 3, -2))
sketch1.addConstraint(Sketcher.Constraint("Symmetric", 2, 3, 16, 3, -2))
sketch1.addConstraint(Sketcher.Constraint("Symmetric", 48, 3, 52, 3, -2))
sketch1.addConstraint(Sketcher.Constraint("Symmetric", 46, 3, 54, 3, -2))
sketch1.addConstraint(Sketcher.Constraint("Symmetric", 44, 3, 56, 3, -2))
sketch1.addConstraint(Sketcher.Constraint("Symmetric", 7, 2, 10, 2, -2))
sketch1.addConstraint(Sketcher.Constraint("Symmetric", 3, 2, 14, 2, -2))
sketch1.addConstraint(Sketcher.Constraint("Symmetric", 43, 3, 66, 3, -1))
sketch1.addConstraint(Sketcher.Constraint("Perpendicular", 1, 3))
sketch1.addConstraint(Sketcher.Constraint("Parallel", 3, 4))
sketch1.addConstraint(Sketcher.Constraint("Perpendicular", 4, 7))
sketch1.addConstraint(Sketcher.Constraint("Perpendicular", 15, 17))
sketch1.addConstraint(Sketcher.Constraint("Perpendicular", 24, 27))
sketch1.addConstraint(Sketcher.Constraint("Perpendicular", 35, 37))
sketch1.addConstraint(Sketcher.Constraint("Vertical", 68, 3, 5, 1))
sketch1.addConstraint(Sketcher.Constraint("Equal", 45, 49))
sketch1.addConstraint(Sketcher.Constraint("Diameter", 43, Q("4 mm")))
sketch1.addConstraint(Sketcher.Constraint("Radius", 0, Q("10 mm")))
sketch1.addConstraint(Sketcher.Constraint("Diameter", 40, Q("4.8 mm")))
sketch1.addConstraint(Sketcher.Constraint("Radius", 2, Q("3.5 mm")))
sketch1.addConstraint(Sketcher.Constraint("Radius", 5, Q("4.5 mm")))
sketch1.addConstraint(Sketcher.Constraint("Diameter", 41, Q("3.04 mm")))
sketch1.addConstraint(Sketcher.Constraint("Diameter", 42, Q("3.18 mm")))
sketch1.addConstraint(Sketcher.Constraint("Distance", 3, Q("4.6 mm")))
sketch1.addConstraint(Sketcher.Constraint("DistanceX", 6, 3, -1, 1, Q("14.85 mm")))
sketch1.addConstraint(Sketcher.Constraint("DistanceX", 43, 3, -1, 1, Q("0.05 mm")))
sketch1.addConstraint(Sketcher.Constraint("DistanceY", -1, 1, 2, 1, Q("25.492002 mm")))
sketch1.addConstraint(Sketcher.Constraint("Radius", 6, Q("3.356053 mm")))
sketch1.addConstraint(Sketcher.Constraint("Distance", 7, Q("8.1447 mm")))
sketch1.addConstraint(Sketcher.Constraint("DistanceX", 9, 1, 9, 2, Q("4.73741 mm")))
sketch1.addConstraint(Sketcher.Constraint("Distance", 1, Q("11.474842 mm")))
sketch1.addConstraint(Sketcher.Constraint("Distance", 4, Q("5.068222 mm")))
sketch1.addConstraint(Sketcher.Constraint("Distance", 45, Q("5.657409 mm")))
sketch1.addConstraint(Sketcher.Constraint("Distance", 47, Q("2.774249 mm")))
sketch1.addConstraint(Sketcher.Constraint("DistanceY", 19, 2, 19, 1, Q("10.665303 mm")))
sketch1.addConstraint(Sketcher.Constraint("DistanceX", 2, 3, -1, 1, Q("23.030462 mm")))
sketch1.addConstraint(Sketcher.Constraint("DistanceY", -1, 1, 40, 3, Q("24.348641 mm")))
sketch1.addConstraint(Sketcher.Constraint("DistanceY", -1, 1, 43, 3, Q("12.497129 mm")))
sketch1.addConstraint(Sketcher.Constraint("DistanceX", -1, 1, 58, 3, Q("15.469369 mm")))
sketch1.addConstraint(Sketcher.Constraint("DistanceY", 59, 3, -1, 1, Q("15.165118 mm")))
sketch1.addConstraint(Sketcher.Constraint("DistanceY", 67, 3, -1, 1, Q("24.16363 mm")))
sketch1.addConstraint(Sketcher.Constraint("DistanceY", 75, 3, -1, 1, Q("15.20563 mm")))
sketch1.addConstraint(Sketcher.Constraint("DistanceX", -1, 1, 77, 3, Q("21.16689 mm")))
sketch1.addConstraint(Sketcher.Constraint("DistanceY", -1, 1, 44, 2, Q("5.999582 mm")))
sketch1.addConstraint(Sketcher.Constraint("DistanceX", 45, 2, -1, 1, Q("5.87356 mm")))
sketch1.addConstraint(Sketcher.Constraint("DistanceX", 46, 2, -1, 1, Q("8.997092 mm")))
sketch1.addConstraint(Sketcher.Constraint("DistanceX", 40, 3, -1, 1, Q("20.768636 mm")))
sketch1.addConstraint(Sketcher.Constraint("DistanceX", 42, 3, -1, 1, Q("15.030604 mm")))
sketch1.addConstraint(Sketcher.Constraint("DistanceY", -1, 1, 42, 3, Q("15.334855 mm")))
sketch1.addConstraint(Sketcher.Constraint("DistanceX", -1, 1, 51, 3, Q("21.231327 mm")))
sketch1.addConstraint(Sketcher.Constraint("DistanceY", -1, 1, 51, 3, Q("24.292854 mm")))
sketch1.addConstraint(Sketcher.Constraint("DistanceY", -1, 1, 58, 3, Q("15.294343 mm")))
sketch1.addConstraint(Sketcher.Constraint("DistanceX", 59, 3, -1, 1, Q("15.071116 mm")))
sketch1.addConstraint(Sketcher.Constraint("DistanceX", 67, 3, -1, 1, Q("20.833073 mm")))
sketch1.addConstraint(Sketcher.Constraint("DistanceX", -1, 1, 75, 3, Q("15.428857 mm")))
sketch1.addConstraint(Sketcher.Constraint("DistanceY", 77, 3, -1, 1, Q("24.219417 mm")))
sketch1.setExpression("Constraints[144]", "Params.sketch1_diameter")
sketch1.setExpression("Constraints[145]", "Params.sketch1_radius")
sketch1.setExpression("Constraints[146]", "Params.sketch1_diameter2")
sketch1.setExpression("Constraints[147]", "Params.sketch1_radius2")
sketch1.setExpression("Constraints[148]", "Params.sketch1_radius3")
pad1 = body.newObject("PartDesign::Pad", "Pad")
pad1.Profile = sketch1
pad1.setExpression("Length", "Params.pad1_length")
pad1.Reversed = True

doc.recompute()
